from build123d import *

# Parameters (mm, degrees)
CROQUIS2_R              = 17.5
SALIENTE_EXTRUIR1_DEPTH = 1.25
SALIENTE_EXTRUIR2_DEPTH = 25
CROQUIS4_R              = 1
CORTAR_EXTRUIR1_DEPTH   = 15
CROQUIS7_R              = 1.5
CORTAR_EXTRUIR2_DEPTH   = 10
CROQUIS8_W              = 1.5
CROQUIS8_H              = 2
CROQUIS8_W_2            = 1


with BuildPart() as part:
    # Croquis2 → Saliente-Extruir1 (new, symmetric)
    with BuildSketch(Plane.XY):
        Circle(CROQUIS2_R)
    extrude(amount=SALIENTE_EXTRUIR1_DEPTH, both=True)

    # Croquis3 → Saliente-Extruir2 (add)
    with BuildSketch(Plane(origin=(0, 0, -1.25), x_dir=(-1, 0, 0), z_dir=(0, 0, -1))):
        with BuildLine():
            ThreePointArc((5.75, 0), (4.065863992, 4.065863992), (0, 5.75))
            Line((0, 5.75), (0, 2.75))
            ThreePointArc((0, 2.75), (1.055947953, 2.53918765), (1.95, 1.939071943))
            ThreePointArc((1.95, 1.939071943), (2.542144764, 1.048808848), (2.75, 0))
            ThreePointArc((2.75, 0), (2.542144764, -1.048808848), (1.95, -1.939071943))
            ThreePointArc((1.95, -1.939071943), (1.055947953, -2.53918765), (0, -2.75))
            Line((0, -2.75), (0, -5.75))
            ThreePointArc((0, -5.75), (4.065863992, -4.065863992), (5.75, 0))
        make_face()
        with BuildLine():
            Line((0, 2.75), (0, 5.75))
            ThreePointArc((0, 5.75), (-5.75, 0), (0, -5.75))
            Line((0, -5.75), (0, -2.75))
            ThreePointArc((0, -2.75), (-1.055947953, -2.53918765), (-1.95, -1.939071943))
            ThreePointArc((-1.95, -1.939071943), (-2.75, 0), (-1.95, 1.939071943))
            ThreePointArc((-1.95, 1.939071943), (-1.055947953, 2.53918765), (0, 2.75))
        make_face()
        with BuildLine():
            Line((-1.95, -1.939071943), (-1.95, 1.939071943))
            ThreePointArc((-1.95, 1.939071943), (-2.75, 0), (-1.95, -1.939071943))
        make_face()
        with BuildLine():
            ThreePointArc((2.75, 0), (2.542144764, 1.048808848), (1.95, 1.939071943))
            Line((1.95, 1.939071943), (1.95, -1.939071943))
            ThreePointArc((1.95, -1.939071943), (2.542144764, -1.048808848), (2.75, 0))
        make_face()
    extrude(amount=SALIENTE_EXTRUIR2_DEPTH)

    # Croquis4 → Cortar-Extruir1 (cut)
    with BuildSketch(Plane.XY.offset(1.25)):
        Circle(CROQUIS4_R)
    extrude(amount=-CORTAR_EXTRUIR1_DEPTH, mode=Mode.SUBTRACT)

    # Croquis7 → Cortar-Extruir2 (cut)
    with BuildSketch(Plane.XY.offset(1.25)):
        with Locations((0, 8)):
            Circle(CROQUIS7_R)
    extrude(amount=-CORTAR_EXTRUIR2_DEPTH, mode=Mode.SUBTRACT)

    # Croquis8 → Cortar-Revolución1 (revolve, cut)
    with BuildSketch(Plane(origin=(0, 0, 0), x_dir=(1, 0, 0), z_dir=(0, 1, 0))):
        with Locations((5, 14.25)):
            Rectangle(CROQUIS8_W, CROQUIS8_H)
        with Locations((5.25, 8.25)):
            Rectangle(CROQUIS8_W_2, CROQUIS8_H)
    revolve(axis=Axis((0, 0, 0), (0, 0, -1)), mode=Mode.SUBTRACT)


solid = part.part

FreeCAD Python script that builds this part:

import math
import FreeCAD as App
import Part
import Sketcher

V = App.Vector


def add_polygon(sketch, points):
    """Adds a closed chain of lines whose ends are joined by coincident constraints."""
    first, n = sketch.GeometryCount, len(points)
    for a, b in zip(points, points[1:] + points[:1]):
        sketch.addGeometry(Part.LineSegment(App.Vector(*a, 0), App.Vector(*b, 0)), False)
    for i in range(n):
        sketch.addConstraint(Sketcher.Constraint("Coincident", first + i, 2, first + (i + 1) % n, 1))

doc = App.newDocument("Part")
params = doc.addObject("Spreadsheet::Sheet", "Params")
for row, (alias, value) in enumerate([
    ("sketch1_diameter", "35 mm"),
    ("pad1_length", "2.5 mm"),
    ("sketch2_radius", "5.75 mm"),
    ("sketch2_radius2", "2.75 mm"),
    ("pad2_length", "25 mm"),
    ("sketch3_diameter", "2 mm"),
    ("pocket1_length", "15 mm"),
    ("sketch4_diameter", "3 mm"),
    ("pocket2_length", "10 mm"),
    ("sketch5_width", "1 mm"),
    ("sketch5_height", "2 mm"),
    ("sketch5_width2", "1.5 mm"),
    ("groove_angle", "360 deg"),
], start=1):
    params.set(f"A{row}", alias)
    params.set(f"B{row}", "=" + value)
    params.setAlias(f"B{row}", alias)

body = doc.addObject("PartDesign::Body", "Body")

# Sketch on XY plane
sketch1 = body.newObject("Sketcher::SketchObject", "Sketch")
sketch1.AttachmentSupport = (doc.getObject("XY_Plane"), [""])
sketch1.MapMode = "FlatFace"
sketch1.addGeometry(Part.Circle(V(0, 0, 0), V(0, 0, 1), 17.5), False)
sketch1.addConstraint([
    Sketcher.Constraint("Coincident", 0, 3, -1, 1),
    Sketcher.Constraint("Diameter", 0, 35.0),
])
sketch1.setExpression("Constraints[1]", "Params.sketch1_diameter")
pad1 = body.newObject("PartDesign::Pad", "Pad")
pad1.Profile = sketch1
pad1.setExpression("Length", "Params.pad1_length")
pad1.Midplane = True

# Sketch on XY plane
sketch2 = body.newObject("Sketcher::SketchObject", "Sketch001")
sketch2.AttachmentSupport = (doc.getObject("XY_Plane"), [""])
sketch2.MapMode = "FlatFace"
sketch2.AttachmentOffset = App.Placement(V(0, 0, -1.25), App.Rotation())
sketch2.addGeometry([
    Part.ArcOfCircle(Part.Circle(V(0, 0, 0), V(0, 0, 1), 5.75), math.radians(90), math.radians(180)),  # 0
    Part.ArcOfCircle(Part.Circle(V(0, 0, 0), V(0, 0, 1), 5.75), math.radians(-90), math.radians(90)),  # 1
    Part.ArcOfCircle(Part.Circle(V(0, 0, 0), V(0, 0, 1), 5.75), math.radians(180), math.radians(270)),  # 2
    Part.ArcOfCircle(Part.Circle(V(0, 0, 0), V(0, 0, 1), 2.75), math.radians(-135.160997), math.radians(-90)),  # 3
    Part.ArcOfCircle(Part.Circle(V(0, 0, 0), V(0, 0, 1), 2.75), math.radians(-90), math.radians(-44.839003)),  # 4
    Part.LineSegment(V(1.95, -1.939072, 0), V(1.95, 1.939072, 0)),  # 5
    Part.ArcOfCircle(Part.Circle(V(0, 0, 0), V(0, 0, 1), 2.75), math.radians(44.839003), math.radians(90)),  # 6
    Part.ArcOfCircle(Part.Circle(V(0, 0, 0), V(0, 0, 1), 2.75), math.radians(90), math.radians(135.160997)),  # 7
    Part.LineSegment(V(-1.95, 1.939072, 0), V(-1.95, -1.939072, 0)),  # 8
], False)
sketch2.addConstraint([
    Sketcher.Constraint("Tangent", 0, 1, 1, 2),
    Sketcher.Constraint("Tangent", 1, 1, 2, 2),
    Sketcher.Constraint("Tangent", 2, 1, 0, 2),
    Sketcher.Constraint("Tangent", 3, 2, 4, 1),
    Sketcher.Constraint("Coincident", 4, 2, 5, 1),
    Sketcher.Constraint("Coincident", 5, 2, 6, 1),
    Sketcher.Constraint("Tangent", 6, 2, 7, 1),
    Sketcher.Constraint("Coincident", 7, 2, 8, 1),
    Sketcher.Constraint("Coincident", 8, 2, 3, 1),
    Sketcher.Constraint("Vertical", 5),
    Sketcher.Constraint("Vertical", 8),
    Sketcher.Constraint("Coincident", 0, 3, -1, 1),
    Sketcher.Constraint("Coincident", 3, 3, -1, 1),
    Sketcher.Constraint("Coincident", 6, 3, -1, 1),
    Sketcher.Constraint("Equal", 3, 4),
    Sketcher.Constraint("Equal", 4, 6),
    Sketcher.Constraint("Equal", 6, 7),
    Sketcher.Constraint("PointOnObject", 0, 1, -2),
    Sketcher.Constraint("PointOnObject", 1, 1, -2),
    Sketcher.Constraint("PointOnObject", 2, 1, -1),
    Sketcher.Constraint("PointOnObject", 3, 2, -2),
    Sketcher.Constraint("PointOnObject", 6, 2, -2),
    Sketcher.Constraint("Horizontal", 5, 2, 7, 2),
    Sketcher.Constraint("Radius", 0, 5.75),
    Sketcher.Constraint("Radius", 3, 2.75),
    Sketcher.Constraint("DistanceX", -1, 1, 4, 2, 1.95),
])
sketch2.setExpression("Constraints[23]", "Params.sketch2_radius")
sketch2.setExpression("Constraints[24]", "Params.sketch2_radius2")
pad2 = body.newObject("PartDesign::Pad", "Pad001")
pad2.Profile = sketch2
pad2.setExpression("Length", "Params.pad2_length")
pad2.Reversed = True

# Sketch on XY plane
sketch3 = body.newObject("Sketcher::SketchObject", "Sketch002")
sketch3.AttachmentSupport = (doc.getObject("XY_Plane"), [""])
sketch3.MapMode = "FlatFace"
sketch3.AttachmentOffset = App.Placement(V(0, 0, 1.25), App.Rotation())
sketch3.addGeometry(Part.Circle(V(0, 0, 0), V(0, 0, 1), 1), False)
sketch3.addConstraint([
    Sketcher.Constraint("Coincident", 0, 3, -1, 1),
    Sketcher.Constraint("Diameter", 0, 2.0),
])
sketch3.setExpression("Constraints[1]", "Params.sketch3_diameter")
pocket1 = body.newObject("PartDesign::Pocket", "Pocket")
pocket1.Profile = sketch3
pocket1.setExpression("Length", "Params.pocket1_length")

# Sketch on XY plane
sketch4 = body.newObject("Sketcher::SketchObject", "Sketch003")
sketch4.AttachmentSupport = (doc.getObject("XY_Plane"), [""])
sketch4.MapMode = "FlatFace"
sketch4.AttachmentOffset = App.Placement(V(0, 0, 1.25), App.Rotation())
sketch4.addGeometry(Part.Circle(V(0, 8, 0), V(0, 0, 1), 1.5), False)
sketch4.addConstraint([
    Sketcher.Constraint("PointOnObject", 0, 3, -2),
    Sketcher.Constraint("Diameter", 0, 3.0),
    Sketcher.Constraint("DistanceY", -1, 1, 0, 3, 8.0),
])
sketch4.setExpression("Constraints[1]", "Params.sketch4_diameter")
pocket2 = body.newObject("PartDesign::Pocket", "Pocket001")
pocket2.Profile = sketch4
pocket2.setExpression("Length", "Params.pocket2_length")

# Sketch on XZ plane
sketch5 = body.newObject("Sketcher::SketchObject", "Sketch004")
sketch5.AttachmentSupport = (doc.getObject("XZ_Plane"), [""])
sketch5.MapMode = "FlatFace"
add_polygon(sketch5, [(4.25, -15.25), (4.25, -13.25), (5.75, -13.25), (5.75, -15.25)])  # lines 0-3
add_polygon(sketch5, [(4.75, -9.25), (4.75, -7.25), (5.75, -7.25), (5.75, -9.25)])  # lines 4-7
sketch5.addConstraint([
    Sketcher.Constraint("Vertical", 0),
    Sketcher.Constraint("Horizontal", 1),
    Sketcher.Constraint("Vertical", 2),
    Sketcher.Constraint("Horizontal", 3),
    Sketcher.Constraint("Vertical", 4),
    Sketcher.Constraint("Horizontal", 5),
    Sketcher.Constraint("Vertical", 6),
    Sketcher.Constraint("Horizontal", 7),
    Sketcher.Constraint("Vertical", 2, 2, 5, 2),
    Sketcher.Constraint("Equal", 2, 4),
    Sketcher.Constraint("DistanceX", 5, 1, 5, 2, 1.0),
    Sketcher.Constraint("DistanceY", 0, 1, 0, 2, 2.0),
    Sketcher.Constraint("DistanceX", 1, 1, 1, 2, 1.5),
    Sketcher.Constraint("DistanceY", 0, 2, 4, 2, 6.0),
    Sketcher.Constraint("DistanceX", -1, 1, 0, 2, 4.25),
    Sketcher.Constraint("DistanceY", 0, 2, -1, 1, 13.25),
])
sketch5.setExpression("Constraints[18]", "Params.sketch5_width")
sketch5.setExpression("Constraints[19]", "Params.sketch5_height")
sketch5.setExpression("Constraints[20]", "Params.sketch5_width2")
groove = body.newObject("PartDesign::Groove", "Groove")
groove.Profile = sketch5
groove.ReferenceAxis = (sketch5, ["V_Axis"])
groove.setExpression("Angle", "Params.groove_angle")

doc.recompute()
